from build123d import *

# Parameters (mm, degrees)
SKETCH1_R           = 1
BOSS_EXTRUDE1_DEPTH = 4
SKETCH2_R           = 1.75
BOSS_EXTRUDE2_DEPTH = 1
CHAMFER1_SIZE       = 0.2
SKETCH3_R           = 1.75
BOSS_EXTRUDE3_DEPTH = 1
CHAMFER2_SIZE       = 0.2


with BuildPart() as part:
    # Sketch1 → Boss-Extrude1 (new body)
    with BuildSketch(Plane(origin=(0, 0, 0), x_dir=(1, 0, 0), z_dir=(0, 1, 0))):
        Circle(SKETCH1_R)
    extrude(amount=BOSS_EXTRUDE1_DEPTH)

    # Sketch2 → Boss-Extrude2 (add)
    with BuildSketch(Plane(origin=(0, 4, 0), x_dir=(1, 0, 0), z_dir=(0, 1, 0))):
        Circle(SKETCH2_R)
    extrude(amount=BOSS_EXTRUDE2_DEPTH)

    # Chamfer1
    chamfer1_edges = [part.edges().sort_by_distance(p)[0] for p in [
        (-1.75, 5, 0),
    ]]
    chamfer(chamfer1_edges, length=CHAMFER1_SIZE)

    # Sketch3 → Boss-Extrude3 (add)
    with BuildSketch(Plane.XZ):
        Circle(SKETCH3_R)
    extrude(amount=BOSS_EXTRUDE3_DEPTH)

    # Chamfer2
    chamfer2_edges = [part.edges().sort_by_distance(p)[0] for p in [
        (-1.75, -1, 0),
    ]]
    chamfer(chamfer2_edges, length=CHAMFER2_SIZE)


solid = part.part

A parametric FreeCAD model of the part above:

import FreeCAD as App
import Part
import Sketcher
from FreeCAD import Vector


def edges_at(feature, points):
    """Names of the edges that pass closest to the given points."""
    edges = feature.Shape.Edges
    near = lambda p: min(range(len(edges)), key=lambda i: edges[i].distToShape(Part.Vertex(*p))[0])
    return sorted({f"Edge{near(p) + 1}" for p in points})

doc = App.newDocument("Part")
body = doc.addObject("PartDesign::Body", "Body")

sketch1 = body.newObject("Sketcher::SketchObject", "Sketch")
sketch1.AttachmentSupport = (doc.getObject("XZ_Plane"), [""])
sketch1.MapMode = "FlatFace"
sketch1.addGeometry(Part.Circle(Vector(0, 0, 0), Vector(0, 0, 1), 1), False)
sketch1.addConstraint(Sketcher.Constraint("Coincident", 0, 3, -1, 1))
sketch1.addConstraint(Sketcher.Constraint("Diameter", 0, 2.0))
pad1 = body.newObject("PartDesign::Pad", "Pad")
pad1.Profile = sketch1
pad1.Length = 4
pad1.Reversed = True

sketch2 = body.newObject("Sketcher::SketchObject", "Sketch001")
sketch2.AttachmentSupport = (doc.getObject("XZ_Plane"), [""])
sketch2.MapMode = "FlatFace"
sketch2.AttachmentOffset = App.Placement(Vector(0, 0, -4), App.Rotation())
sketch2.addGeometry(Part.Circle(Vector(0, 0, 0), Vector(0, 0, 1), 1.8), False)
sketch2.addConstraint(Sketcher.Constraint("Coincident", 0, 3, -1, 1))
sketch2.addConstraint(Sketcher.Constraint("Diameter", 0, 3.5))
pad2 = body.newObject("PartDesign::Pad", "Pad001")
pad2.Profile = sketch2
pad2.Length = 1
pad2.Reversed = True
doc.recompute()

chamfer = body.newObject("PartDesign::Chamfer", "Chamfer")
chamfer.Base = (pad2, edges_at(pad2, [(-1.75, 5, 0)]))
chamfer.Size = 0.2

sketch3 = body.newObject("Sketcher::SketchObject", "Sketch002")
sketch3.AttachmentSupport = (doc.getObject("XZ_Plane"), [""])
sketch3.MapMode = "FlatFace"
sketch3.addGeometry(Part.Circle(Vector(0, 0, 0), Vector(0, 0, 1), 1.8), False)
sketch3.addConstraint(Sketcher.Constraint("Coincident", 0, 3, -1, 1))
sketch3.addConstraint(Sketcher.Constraint("Diameter", 0, 3.5))
pad3 = body.newObject("PartDesign::Pad", "Pad002")
pad3.Profile = sketch3
pad3.Length = 1
doc.recompute()

chamfer2 = body.newObject("PartDesign::Chamfer", "Chamfer001")
chamfer2.Base = (pad3, edges_at(pad3, [(-1.75, -1, 0)]))
chamfer2.Size = 0.2

doc.recompute()
